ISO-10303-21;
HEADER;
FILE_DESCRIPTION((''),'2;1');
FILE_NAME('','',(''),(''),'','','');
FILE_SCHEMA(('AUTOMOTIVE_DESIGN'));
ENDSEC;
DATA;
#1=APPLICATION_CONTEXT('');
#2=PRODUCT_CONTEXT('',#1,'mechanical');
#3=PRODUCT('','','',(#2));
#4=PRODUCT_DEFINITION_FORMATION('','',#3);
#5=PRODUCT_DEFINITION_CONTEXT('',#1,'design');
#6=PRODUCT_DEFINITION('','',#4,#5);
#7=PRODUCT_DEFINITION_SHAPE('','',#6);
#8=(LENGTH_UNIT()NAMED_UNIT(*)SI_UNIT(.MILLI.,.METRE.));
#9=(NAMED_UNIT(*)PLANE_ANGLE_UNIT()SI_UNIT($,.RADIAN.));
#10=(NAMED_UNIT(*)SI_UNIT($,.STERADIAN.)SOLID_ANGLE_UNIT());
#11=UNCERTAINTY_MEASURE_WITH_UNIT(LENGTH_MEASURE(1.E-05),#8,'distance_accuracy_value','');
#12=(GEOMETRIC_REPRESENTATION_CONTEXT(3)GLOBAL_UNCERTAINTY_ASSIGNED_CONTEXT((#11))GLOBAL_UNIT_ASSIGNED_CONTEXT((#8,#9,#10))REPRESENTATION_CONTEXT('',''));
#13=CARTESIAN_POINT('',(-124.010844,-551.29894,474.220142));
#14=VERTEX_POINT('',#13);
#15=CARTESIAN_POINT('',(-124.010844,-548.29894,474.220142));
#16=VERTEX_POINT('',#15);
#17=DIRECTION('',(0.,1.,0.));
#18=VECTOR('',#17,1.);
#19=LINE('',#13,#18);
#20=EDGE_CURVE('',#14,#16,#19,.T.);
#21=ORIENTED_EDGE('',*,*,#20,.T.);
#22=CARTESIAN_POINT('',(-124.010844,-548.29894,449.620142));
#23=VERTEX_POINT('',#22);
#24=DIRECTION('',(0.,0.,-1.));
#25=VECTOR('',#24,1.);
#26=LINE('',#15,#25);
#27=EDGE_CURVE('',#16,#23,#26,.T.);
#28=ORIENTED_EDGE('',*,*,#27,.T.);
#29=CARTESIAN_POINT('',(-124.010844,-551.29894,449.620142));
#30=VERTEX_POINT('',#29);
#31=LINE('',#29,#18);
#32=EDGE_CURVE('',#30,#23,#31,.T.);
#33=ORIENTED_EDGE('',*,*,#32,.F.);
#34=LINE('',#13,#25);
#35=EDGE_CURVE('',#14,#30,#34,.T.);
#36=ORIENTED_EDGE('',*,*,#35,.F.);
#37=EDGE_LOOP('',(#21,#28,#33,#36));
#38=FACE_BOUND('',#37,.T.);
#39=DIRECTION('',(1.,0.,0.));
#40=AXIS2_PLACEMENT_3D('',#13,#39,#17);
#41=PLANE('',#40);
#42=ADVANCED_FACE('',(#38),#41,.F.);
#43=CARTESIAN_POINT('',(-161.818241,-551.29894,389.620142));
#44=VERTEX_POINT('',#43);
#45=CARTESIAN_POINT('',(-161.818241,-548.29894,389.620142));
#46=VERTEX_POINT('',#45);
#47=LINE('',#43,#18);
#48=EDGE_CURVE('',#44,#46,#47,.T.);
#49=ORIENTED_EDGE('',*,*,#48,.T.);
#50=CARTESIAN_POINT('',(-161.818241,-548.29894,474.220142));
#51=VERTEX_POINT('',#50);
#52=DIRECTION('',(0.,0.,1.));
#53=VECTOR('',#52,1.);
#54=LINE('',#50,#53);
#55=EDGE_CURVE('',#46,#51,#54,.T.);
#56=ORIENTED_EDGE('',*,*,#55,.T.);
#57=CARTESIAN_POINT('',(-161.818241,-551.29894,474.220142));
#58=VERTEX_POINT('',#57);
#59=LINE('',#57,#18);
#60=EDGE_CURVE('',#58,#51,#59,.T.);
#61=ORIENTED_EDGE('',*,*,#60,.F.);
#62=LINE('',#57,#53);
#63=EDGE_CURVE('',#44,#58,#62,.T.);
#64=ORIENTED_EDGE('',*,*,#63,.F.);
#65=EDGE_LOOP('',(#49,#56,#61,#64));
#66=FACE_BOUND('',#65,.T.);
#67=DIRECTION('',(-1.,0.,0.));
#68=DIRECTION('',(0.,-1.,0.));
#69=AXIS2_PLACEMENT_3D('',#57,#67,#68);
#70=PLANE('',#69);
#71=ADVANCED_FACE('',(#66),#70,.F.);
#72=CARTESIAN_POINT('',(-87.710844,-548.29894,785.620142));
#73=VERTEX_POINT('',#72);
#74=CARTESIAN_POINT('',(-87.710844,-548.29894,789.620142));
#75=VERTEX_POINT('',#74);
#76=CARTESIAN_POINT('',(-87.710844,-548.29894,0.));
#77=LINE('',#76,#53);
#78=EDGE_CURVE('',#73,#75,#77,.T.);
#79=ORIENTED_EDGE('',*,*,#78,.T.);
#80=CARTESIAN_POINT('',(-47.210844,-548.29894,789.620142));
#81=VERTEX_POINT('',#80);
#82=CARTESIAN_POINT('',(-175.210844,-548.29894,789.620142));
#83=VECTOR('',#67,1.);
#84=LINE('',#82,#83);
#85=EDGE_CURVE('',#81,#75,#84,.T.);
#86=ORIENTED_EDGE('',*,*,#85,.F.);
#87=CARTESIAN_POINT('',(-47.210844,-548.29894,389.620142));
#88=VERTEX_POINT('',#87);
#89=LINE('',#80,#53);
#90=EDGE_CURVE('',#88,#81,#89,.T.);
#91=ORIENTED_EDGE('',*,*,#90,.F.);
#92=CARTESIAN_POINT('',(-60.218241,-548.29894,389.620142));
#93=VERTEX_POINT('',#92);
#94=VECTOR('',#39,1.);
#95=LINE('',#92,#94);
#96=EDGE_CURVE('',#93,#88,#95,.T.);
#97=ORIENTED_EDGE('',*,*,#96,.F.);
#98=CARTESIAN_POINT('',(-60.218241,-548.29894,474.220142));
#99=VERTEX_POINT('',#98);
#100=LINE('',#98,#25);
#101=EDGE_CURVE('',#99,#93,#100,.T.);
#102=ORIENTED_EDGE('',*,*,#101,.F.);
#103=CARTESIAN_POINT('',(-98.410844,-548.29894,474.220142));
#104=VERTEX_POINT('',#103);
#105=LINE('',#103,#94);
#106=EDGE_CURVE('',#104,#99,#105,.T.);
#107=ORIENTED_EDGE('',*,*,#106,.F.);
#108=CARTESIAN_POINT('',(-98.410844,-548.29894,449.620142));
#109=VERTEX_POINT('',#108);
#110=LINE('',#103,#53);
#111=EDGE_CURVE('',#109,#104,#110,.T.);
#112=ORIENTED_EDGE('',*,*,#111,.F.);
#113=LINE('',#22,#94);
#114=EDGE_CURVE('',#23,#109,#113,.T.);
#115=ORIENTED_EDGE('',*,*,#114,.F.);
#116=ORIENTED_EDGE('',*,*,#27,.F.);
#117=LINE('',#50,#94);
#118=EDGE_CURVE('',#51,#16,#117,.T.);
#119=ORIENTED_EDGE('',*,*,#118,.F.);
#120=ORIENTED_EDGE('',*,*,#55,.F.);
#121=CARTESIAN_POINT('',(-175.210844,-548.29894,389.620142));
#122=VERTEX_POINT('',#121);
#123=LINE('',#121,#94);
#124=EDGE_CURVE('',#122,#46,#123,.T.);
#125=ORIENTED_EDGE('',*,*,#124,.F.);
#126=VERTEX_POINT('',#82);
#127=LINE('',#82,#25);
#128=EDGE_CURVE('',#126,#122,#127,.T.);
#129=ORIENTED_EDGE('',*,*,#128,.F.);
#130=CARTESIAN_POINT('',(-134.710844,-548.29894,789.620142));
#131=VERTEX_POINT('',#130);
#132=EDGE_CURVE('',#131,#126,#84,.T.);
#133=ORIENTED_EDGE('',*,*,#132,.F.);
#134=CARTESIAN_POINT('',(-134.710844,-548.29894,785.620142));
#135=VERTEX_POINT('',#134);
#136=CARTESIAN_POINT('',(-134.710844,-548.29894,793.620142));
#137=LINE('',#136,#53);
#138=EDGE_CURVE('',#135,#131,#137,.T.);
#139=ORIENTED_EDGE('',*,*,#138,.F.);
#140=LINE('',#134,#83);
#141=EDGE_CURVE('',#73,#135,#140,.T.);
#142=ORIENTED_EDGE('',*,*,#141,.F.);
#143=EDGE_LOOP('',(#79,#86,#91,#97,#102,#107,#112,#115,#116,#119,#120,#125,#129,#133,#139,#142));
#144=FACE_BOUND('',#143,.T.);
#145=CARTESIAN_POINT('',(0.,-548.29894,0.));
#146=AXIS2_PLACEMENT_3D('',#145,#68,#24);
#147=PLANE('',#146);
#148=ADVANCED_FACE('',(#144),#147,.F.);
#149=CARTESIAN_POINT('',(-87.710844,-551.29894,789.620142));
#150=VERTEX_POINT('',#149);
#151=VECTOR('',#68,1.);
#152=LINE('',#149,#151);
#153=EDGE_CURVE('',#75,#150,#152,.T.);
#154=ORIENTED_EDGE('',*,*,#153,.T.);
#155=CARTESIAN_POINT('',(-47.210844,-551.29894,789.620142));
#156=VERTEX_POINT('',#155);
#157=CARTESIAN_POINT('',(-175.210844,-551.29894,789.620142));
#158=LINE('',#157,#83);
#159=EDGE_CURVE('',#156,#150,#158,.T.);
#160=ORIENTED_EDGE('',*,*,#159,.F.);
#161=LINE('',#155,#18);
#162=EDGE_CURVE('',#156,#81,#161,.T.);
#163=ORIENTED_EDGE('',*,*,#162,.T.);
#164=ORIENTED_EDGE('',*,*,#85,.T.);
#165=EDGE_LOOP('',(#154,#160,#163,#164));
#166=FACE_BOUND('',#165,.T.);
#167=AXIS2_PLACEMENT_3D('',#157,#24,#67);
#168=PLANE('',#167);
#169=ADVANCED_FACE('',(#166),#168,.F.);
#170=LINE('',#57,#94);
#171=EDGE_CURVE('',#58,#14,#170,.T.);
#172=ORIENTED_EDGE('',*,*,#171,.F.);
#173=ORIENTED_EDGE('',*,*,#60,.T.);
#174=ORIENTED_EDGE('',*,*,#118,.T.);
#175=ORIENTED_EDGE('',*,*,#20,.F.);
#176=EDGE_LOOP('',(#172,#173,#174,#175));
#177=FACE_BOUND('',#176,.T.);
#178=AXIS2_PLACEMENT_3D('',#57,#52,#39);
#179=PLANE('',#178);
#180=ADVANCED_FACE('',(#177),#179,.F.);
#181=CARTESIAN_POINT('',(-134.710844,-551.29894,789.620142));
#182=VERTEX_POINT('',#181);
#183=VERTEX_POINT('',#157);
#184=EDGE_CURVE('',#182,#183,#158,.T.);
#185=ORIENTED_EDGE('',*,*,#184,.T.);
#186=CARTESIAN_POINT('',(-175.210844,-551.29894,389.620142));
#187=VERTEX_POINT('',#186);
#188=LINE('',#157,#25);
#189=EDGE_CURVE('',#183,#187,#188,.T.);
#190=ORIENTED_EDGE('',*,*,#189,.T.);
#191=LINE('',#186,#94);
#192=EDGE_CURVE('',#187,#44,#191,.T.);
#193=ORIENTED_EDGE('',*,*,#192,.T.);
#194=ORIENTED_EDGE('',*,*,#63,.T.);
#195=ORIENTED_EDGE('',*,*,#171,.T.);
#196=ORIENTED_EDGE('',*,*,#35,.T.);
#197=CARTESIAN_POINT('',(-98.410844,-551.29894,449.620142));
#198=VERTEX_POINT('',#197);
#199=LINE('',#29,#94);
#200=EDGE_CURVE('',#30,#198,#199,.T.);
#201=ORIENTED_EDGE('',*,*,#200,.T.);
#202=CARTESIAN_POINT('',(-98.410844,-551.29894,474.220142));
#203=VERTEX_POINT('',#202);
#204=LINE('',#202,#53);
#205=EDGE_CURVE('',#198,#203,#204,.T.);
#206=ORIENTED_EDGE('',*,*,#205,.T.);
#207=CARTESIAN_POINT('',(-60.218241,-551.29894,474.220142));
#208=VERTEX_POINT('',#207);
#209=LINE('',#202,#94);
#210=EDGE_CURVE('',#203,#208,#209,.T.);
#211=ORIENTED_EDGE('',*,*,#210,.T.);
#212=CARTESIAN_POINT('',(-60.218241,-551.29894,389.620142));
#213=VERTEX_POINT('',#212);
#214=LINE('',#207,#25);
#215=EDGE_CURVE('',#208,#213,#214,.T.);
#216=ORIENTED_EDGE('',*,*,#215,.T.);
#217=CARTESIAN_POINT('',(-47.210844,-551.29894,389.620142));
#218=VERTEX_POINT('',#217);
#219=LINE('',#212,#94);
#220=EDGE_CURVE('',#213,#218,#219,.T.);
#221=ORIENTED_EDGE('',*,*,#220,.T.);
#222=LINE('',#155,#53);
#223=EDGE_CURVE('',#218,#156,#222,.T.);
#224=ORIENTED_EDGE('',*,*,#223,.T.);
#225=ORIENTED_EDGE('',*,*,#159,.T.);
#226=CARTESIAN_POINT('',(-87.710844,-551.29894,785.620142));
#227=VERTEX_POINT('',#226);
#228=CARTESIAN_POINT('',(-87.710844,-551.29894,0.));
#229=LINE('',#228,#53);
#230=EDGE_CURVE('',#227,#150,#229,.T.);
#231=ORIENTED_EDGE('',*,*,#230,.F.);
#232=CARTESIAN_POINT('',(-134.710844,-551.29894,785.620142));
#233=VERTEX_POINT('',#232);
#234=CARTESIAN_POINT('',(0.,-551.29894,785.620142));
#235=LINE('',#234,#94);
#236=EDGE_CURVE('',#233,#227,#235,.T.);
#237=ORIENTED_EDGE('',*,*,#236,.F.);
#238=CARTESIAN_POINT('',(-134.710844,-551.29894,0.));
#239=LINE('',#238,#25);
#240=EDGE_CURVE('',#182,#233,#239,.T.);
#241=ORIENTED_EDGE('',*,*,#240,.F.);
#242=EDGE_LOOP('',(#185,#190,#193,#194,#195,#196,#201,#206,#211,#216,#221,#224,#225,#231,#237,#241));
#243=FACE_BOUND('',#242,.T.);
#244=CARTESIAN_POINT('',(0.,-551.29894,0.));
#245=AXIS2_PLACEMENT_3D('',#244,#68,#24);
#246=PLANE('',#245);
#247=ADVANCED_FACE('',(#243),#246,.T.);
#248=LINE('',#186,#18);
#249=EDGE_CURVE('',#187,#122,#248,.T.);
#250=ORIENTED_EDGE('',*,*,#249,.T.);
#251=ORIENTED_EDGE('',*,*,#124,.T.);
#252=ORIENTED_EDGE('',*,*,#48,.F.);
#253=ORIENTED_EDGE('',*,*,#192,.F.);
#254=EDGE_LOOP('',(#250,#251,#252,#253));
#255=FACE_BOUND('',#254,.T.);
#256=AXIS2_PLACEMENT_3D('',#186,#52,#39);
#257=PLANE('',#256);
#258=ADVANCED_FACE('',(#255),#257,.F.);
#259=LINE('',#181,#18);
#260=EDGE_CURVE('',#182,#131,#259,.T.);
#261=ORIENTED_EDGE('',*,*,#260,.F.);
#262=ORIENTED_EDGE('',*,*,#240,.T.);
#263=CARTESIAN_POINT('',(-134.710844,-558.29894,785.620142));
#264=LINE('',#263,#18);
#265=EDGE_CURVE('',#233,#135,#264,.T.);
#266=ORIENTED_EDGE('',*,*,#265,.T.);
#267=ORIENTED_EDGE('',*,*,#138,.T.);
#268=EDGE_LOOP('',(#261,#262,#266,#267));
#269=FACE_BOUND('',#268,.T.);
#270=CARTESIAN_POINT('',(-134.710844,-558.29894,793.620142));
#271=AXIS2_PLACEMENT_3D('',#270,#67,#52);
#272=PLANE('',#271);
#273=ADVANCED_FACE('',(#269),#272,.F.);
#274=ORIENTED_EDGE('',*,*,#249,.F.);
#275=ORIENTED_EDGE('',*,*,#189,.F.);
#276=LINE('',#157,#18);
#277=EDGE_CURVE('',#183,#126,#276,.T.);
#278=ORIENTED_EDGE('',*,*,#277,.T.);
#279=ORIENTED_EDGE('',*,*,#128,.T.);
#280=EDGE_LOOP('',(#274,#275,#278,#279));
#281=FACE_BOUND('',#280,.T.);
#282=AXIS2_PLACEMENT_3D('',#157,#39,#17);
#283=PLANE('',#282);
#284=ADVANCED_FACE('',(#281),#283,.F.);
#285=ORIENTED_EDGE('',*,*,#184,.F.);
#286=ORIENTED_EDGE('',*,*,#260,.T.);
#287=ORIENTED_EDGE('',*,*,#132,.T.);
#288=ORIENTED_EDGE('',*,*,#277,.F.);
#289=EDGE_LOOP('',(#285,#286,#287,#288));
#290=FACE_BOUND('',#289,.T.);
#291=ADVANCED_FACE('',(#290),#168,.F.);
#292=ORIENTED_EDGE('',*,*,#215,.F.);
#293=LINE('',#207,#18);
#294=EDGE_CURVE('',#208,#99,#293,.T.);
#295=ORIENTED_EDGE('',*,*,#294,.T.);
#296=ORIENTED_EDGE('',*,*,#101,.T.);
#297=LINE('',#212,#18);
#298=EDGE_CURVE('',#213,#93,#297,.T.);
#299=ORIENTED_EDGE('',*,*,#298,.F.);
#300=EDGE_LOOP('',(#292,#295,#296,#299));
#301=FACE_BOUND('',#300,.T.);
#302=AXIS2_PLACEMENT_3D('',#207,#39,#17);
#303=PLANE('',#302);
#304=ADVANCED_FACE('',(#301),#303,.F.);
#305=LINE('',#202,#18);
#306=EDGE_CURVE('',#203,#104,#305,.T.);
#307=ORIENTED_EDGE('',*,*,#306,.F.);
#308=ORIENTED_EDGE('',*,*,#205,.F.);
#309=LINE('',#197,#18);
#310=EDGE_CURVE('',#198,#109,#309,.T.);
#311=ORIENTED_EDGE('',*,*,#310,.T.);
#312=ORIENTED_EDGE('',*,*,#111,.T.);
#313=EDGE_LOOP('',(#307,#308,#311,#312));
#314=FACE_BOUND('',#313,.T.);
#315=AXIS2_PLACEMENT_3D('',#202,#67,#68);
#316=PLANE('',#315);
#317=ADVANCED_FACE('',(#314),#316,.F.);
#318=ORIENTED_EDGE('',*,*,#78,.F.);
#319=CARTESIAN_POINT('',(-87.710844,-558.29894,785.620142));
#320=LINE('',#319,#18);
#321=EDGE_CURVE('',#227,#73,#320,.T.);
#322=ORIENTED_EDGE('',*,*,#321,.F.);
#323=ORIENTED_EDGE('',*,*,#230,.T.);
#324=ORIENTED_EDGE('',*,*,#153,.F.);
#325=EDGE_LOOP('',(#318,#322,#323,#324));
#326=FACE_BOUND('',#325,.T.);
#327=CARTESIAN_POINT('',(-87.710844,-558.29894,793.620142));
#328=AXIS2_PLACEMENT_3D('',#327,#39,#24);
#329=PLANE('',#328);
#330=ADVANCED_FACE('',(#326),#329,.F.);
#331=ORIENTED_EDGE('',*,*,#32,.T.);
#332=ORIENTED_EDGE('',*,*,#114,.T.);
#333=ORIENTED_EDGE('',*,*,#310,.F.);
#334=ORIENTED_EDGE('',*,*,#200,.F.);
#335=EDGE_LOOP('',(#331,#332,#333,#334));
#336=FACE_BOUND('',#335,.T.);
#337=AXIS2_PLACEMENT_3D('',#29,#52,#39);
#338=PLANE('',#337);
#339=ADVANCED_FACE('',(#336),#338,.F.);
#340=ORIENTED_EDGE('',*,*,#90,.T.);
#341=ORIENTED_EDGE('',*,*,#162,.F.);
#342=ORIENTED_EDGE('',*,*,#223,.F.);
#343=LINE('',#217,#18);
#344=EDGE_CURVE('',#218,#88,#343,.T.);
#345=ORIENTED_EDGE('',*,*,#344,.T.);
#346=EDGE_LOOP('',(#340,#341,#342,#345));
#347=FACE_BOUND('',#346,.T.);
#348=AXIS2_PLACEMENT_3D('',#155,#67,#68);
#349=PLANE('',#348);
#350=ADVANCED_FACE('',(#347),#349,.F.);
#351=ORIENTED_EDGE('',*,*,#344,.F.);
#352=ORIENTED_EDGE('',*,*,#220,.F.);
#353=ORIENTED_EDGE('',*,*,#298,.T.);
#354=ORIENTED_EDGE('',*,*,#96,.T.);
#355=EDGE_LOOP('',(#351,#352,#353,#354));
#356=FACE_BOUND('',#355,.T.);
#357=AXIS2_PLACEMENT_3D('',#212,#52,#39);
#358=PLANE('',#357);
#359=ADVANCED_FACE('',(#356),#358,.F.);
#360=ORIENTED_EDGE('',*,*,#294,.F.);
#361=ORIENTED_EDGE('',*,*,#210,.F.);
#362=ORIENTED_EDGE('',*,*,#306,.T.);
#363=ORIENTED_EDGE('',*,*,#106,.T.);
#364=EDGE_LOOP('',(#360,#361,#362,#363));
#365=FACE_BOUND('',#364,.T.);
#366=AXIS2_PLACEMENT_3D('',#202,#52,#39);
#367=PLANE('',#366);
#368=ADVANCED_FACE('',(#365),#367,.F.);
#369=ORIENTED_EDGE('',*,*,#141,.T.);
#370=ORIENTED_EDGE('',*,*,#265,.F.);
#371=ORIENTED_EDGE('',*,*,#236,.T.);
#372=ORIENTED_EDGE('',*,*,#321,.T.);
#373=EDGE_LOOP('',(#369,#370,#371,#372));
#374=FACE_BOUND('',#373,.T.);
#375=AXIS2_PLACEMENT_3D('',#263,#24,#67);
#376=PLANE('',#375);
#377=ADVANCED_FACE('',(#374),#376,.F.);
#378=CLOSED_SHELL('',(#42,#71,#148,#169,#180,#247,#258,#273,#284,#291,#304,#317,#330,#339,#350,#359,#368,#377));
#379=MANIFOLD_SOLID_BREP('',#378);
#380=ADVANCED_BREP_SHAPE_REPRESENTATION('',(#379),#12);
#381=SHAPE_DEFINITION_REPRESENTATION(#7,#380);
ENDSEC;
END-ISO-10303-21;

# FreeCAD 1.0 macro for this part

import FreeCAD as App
import Part
import Sketcher

V = App.Vector


def add_polygon(sketch, points):
    """Adds a closed chain of lines whose ends are joined by coincident constraints."""
    first, n = sketch.GeometryCount, len(points)
    for a, b in zip(points, points[1:] + points[:1]):
        sketch.addGeometry(Part.LineSegment(App.Vector(*a, 0), App.Vector(*b, 0)), False)
    for i in range(n):
        sketch.addConstraint(Sketcher.Constraint("Coincident", first + i, 2, first + (i + 1) % n, 1))

doc = App.newDocument("Part")
body = doc.addObject("PartDesign::Body", "Body")

sketch1 = doc.addObject("Sketcher::SketchObject", "Sketch")
body.addObject(sketch1)
sketch1.AttachmentSupport = (doc.XZ_Plane, [""])
sketch1.MapMode = "FlatFace"
sketch1.AttachmentOffset = App.Placement(V(0, 0, 548.29894), App.Rotation())
add_polygon(sketch1, [(-47.210844, 789.620142), (-175.210844, 789.620142), (-175.210844, 389.620142), (-161.818241, 389.620142), (-161.818241, 474.220142), (-124.010844, 474.220142), (-124.010844, 449.620142), (-98.410844, 449.620142), (-98.410844, 474.220142), (-60.218241, 474.220142), (-60.218241, 389.620142), (-47.210844, 389.620142)])
sketch1.addConstraint(Sketcher.Constraint("Horizontal", 0))
sketch1.addConstraint(Sketcher.Constraint("Vertical", 1))
sketch1.addConstraint(Sketcher.Constraint("Horizontal", 2))
sketch1.addConstraint(Sketcher.Constraint("Vertical", 3))
sketch1.addConstraint(Sketcher.Constraint("Horizontal", 4))
sketch1.addConstraint(Sketcher.Constraint("Vertical", 5))
sketch1.addConstraint(Sketcher.Constraint("Horizontal", 6))
sketch1.addConstraint(Sketcher.Constraint("Vertical", 7))
sketch1.addConstraint(Sketcher.Constraint("Horizontal", 8))
sketch1.addConstraint(Sketcher.Constraint("Vertical", 9))
sketch1.addConstraint(Sketcher.Constraint("Horizontal", 10))
sketch1.addConstraint(Sketcher.Constraint("Vertical", 11))
sketch1.addConstraint(Sketcher.Constraint("Horizontal", 4, 2, 7, 2))
sketch1.addConstraint(Sketcher.Constraint("Horizontal", 2, 2, 9, 2))
sketch1.addConstraint(Sketcher.Constraint("DistanceX", 0, 2, 0, 1, 128.0))
sketch1.addConstraint(Sketcher.Constraint("DistanceY", 1, 2, 1, 1, 400.0))
sketch1.addConstraint(Sketcher.Constraint("DistanceX", 6, 1, 6, 2, 25.6))
sketch1.addConstraint(Sketcher.Constraint("DistanceY", 3, 1, 3, 2, 84.6))
sketch1.addConstraint(Sketcher.Constraint("DistanceY", 5, 2, 5, 1, 24.6))
sketch1.addConstraint(Sketcher.Constraint("DistanceX", 1, 2, 4, 2, 51.2))
sketch1.addConstraint(Sketcher.Constraint("DistanceX", 3, 2, 8, 2, 101.6))
sketch1.addConstraint(Sketcher.Constraint("DistanceX", 2, 1, 2, 2, 13.392602))
sketch1.addConstraint(Sketcher.Constraint("DistanceY", -1, 1, 0, 2, 789.620142))
sketch1.addConstraint(Sketcher.Constraint("DistanceX", 2, 2, -1, 1, 161.818241))
pad1 = doc.addObject("PartDesign::Pad", "Pad")
body.addObject(pad1)
pad1.Profile = sketch1
pad1.Length = 3

sketch2 = doc.addObject("Sketcher::SketchObject", "Sketch001")
body.addObject(sketch2)
sketch2.AttachmentSupport = (doc.XZ_Plane, [""])
sketch2.MapMode = "FlatFace"
sketch2.AttachmentOffset = App.Placement(V(0, 0, 548.29894), App.Rotation())
add_polygon(sketch2, [(-134.710844, 785.620142), (-134.710844, 793.620142), (-87.710844, 793.620142), (-87.710844, 785.620142)])
sketch2.addConstraint(Sketcher.Constraint("Vertical", 0))
sketch2.addConstraint(Sketcher.Constraint("Horizontal", 1))
sketch2.addConstraint(Sketcher.Constraint("Vertical", 2))
sketch2.addConstraint(Sketcher.Constraint("Horizontal", 3))
sketch2.addConstraint(Sketcher.Constraint("DistanceX", 1, 1, 1, 2, 47.0))
sketch2.addConstraint(Sketcher.Constraint("DistanceY", 0, 1, 0, 2, 8.0))
sketch2.addConstraint(Sketcher.Constraint("DistanceY", -1, 1, 0, 2, 793.620142))
sketch2.addConstraint(Sketcher.Constraint("DistanceX", 0, 2, -1, 1, 134.710844))
pocket1 = doc.addObject("PartDesign::Pocket", "Pocket")
body.addObject(pocket1)
pocket1.Profile = sketch2
pocket1.Length = 10
pocket1.Reversed = True

doc.recompute()
